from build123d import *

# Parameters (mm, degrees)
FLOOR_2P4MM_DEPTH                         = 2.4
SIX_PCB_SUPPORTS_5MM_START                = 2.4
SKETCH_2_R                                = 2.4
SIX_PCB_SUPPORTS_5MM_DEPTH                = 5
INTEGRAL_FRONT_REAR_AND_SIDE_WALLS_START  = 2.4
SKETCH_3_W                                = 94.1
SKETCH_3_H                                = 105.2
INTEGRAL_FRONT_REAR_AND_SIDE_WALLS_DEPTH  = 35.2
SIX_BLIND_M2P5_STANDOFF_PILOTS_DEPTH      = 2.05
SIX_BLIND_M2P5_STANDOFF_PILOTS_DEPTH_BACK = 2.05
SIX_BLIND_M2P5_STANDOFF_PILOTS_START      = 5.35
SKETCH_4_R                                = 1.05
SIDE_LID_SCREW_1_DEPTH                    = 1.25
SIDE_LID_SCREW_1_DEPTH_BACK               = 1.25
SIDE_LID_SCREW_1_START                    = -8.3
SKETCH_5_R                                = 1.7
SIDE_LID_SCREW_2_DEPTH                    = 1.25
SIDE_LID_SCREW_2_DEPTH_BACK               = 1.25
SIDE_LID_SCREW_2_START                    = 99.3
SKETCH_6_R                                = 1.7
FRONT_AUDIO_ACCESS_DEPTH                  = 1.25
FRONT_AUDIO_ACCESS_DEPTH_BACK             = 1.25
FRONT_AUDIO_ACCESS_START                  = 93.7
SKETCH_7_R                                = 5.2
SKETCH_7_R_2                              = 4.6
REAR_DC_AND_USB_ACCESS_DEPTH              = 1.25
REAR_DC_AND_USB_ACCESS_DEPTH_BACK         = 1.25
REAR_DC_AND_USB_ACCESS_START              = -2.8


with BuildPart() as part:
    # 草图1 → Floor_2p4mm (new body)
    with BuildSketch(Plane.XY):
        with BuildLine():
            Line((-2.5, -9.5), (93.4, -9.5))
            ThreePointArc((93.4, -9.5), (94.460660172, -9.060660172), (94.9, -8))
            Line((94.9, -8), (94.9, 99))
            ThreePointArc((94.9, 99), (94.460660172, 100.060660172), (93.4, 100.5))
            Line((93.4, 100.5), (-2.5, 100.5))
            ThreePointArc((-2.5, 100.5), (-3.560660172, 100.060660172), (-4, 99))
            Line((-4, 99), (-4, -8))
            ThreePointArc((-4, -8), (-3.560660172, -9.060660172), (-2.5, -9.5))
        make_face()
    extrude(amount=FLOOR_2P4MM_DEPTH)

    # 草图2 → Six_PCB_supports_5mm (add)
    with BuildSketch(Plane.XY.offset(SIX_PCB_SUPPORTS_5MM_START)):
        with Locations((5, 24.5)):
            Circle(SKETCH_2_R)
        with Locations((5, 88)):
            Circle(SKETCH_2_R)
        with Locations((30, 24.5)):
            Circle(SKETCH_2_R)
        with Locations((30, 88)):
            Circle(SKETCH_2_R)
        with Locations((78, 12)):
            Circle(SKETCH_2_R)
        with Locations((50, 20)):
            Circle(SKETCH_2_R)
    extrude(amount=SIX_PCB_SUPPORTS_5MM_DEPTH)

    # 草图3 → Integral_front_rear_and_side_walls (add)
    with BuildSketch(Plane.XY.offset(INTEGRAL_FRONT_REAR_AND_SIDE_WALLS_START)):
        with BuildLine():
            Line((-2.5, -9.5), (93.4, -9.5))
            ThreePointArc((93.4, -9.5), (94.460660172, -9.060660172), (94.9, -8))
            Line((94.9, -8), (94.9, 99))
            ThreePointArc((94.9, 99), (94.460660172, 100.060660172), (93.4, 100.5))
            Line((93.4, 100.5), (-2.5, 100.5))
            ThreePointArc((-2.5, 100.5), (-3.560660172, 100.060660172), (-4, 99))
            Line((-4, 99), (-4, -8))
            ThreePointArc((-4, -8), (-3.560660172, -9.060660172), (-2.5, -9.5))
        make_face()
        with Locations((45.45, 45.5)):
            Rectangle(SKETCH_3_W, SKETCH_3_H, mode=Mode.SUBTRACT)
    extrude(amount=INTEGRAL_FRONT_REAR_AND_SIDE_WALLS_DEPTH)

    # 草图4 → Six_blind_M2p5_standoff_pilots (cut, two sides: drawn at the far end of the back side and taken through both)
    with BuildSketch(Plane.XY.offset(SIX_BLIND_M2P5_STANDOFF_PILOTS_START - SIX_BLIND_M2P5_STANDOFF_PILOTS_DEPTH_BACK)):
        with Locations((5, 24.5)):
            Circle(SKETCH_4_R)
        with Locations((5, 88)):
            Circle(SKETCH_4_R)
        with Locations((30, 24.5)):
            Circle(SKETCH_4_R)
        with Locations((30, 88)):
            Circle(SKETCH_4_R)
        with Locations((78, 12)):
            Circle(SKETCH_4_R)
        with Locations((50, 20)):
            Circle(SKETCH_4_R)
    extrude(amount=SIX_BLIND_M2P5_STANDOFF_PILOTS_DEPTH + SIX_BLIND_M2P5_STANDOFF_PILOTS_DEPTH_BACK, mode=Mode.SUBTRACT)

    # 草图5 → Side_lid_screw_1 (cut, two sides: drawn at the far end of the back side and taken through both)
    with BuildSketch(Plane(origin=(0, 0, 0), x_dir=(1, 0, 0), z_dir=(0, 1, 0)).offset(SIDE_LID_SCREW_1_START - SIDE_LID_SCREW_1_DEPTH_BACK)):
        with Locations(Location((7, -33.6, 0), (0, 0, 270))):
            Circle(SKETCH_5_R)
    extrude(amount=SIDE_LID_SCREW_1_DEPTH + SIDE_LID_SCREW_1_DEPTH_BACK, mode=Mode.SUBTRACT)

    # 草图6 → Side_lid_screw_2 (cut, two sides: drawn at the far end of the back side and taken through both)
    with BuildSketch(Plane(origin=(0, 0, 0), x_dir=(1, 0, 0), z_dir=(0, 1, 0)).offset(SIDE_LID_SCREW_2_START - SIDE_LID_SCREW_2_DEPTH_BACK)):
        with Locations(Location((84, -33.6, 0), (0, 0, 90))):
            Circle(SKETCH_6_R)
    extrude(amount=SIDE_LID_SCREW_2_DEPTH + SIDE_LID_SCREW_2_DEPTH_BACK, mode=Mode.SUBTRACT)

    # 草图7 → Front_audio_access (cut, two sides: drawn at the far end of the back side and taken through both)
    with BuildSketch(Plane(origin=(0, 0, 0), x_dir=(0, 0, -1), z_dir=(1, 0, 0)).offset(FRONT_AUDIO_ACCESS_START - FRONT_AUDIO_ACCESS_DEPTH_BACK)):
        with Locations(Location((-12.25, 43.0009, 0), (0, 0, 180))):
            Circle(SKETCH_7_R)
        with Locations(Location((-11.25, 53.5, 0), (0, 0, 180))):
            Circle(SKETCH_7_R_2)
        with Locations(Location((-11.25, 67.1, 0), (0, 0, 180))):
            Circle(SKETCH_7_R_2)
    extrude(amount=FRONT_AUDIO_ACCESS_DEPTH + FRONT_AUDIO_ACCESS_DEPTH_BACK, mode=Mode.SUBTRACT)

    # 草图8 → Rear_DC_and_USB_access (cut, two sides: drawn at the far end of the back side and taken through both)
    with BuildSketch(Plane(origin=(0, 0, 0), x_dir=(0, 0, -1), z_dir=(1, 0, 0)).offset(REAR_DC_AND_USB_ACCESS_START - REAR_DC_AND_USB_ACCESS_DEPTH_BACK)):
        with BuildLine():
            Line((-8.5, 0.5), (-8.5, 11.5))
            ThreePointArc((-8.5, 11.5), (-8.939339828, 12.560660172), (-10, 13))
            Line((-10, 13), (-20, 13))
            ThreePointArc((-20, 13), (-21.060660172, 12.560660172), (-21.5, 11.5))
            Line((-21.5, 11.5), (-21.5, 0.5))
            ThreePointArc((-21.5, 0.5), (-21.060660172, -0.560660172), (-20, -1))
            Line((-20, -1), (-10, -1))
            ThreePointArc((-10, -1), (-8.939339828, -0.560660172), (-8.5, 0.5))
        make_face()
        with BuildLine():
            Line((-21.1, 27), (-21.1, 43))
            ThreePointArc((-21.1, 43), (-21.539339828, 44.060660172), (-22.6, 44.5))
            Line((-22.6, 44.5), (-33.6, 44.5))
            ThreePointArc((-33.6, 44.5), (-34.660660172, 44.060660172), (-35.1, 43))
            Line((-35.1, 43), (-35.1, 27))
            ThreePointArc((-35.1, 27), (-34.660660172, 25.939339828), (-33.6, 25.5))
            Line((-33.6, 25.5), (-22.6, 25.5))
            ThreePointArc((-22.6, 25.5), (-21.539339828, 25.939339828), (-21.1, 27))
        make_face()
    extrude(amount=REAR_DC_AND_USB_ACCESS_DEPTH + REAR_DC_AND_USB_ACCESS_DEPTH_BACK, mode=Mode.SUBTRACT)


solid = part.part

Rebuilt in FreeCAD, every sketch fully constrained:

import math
import FreeCAD as App
import Part
import Sketcher
Q = App.Units.Quantity


def add_polygon(sketch, points):
    """Adds a closed chain of lines whose ends are joined by coincident constraints."""
    first, n = sketch.GeometryCount, len(points)
    for a, b in zip(points, points[1:] + points[:1]):
        sketch.addGeometry(Part.LineSegment(App.Vector(*a, 0), App.Vector(*b, 0)), False)
    for i in range(n):
        sketch.addConstraint(Sketcher.Constraint("Coincident", first + i, 2, first + (i + 1) % n, 1))

doc = App.newDocument("Part")
body = doc.addObject("PartDesign::Body", "Body")

# Sketch on XY plane
sketch1 = doc.addObject("Sketcher::SketchObject", "Sketch")
body.addObject(sketch1)
sketch1.AttachmentSupport = (doc.XY_Plane, [""])
sketch1.MapMode = "FlatFace"
sketch1.addGeometry([
    Part.LineSegment(App.Vector(-2.5, -9.5, 0), App.Vector(93.4, -9.5, 0)),  # 0
    Part.ArcOfCircle(Part.Circle(App.Vector(93.4, -8, 0), App.Vector(0, 0, 1), 1.5), math.radians(-90), math.radians(0)),  # 1
    Part.LineSegment(App.Vector(94.9, -8, 0), App.Vector(94.9, 99, 0)),  # 2
    Part.ArcOfCircle(Part.Circle(App.Vector(93.4, 99, 0), App.Vector(0, 0, 1), 1.5), math.radians(0), math.radians(90)),  # 3
    Part.LineSegment(App.Vector(93.4, 100.5, 0), App.Vector(-2.5, 100.5, 0)),  # 4
    Part.ArcOfCircle(Part.Circle(App.Vector(-2.5, 99, 0), App.Vector(0, 0, 1), 1.5), math.radians(90), math.radians(180)),  # 5
    Part.LineSegment(App.Vector(-4, 99, 0), App.Vector(-4, -8, 0)),  # 6
    Part.ArcOfCircle(Part.Circle(App.Vector(-2.5, -8, 0), App.Vector(0, 0, 1), 1.5), math.radians(180), math.radians(270)),  # 7
], False)
sketch1.addConstraint([
    Sketcher.Constraint("Tangent", 0, 2, 1, 1),
    Sketcher.Constraint("Tangent", 1, 2, 2, 1),
    Sketcher.Constraint("Tangent", 2, 2, 3, 1),
    Sketcher.Constraint("Tangent", 3, 2, 4, 1),
    Sketcher.Constraint("Tangent", 4, 2, 5, 1),
    Sketcher.Constraint("Tangent", 5, 2, 6, 1),
    Sketcher.Constraint("Tangent", 6, 2, 7, 1),
    Sketcher.Constraint("Tangent", 7, 2, 0, 1),
    Sketcher.Constraint("Horizontal", 0),
    Sketcher.Constraint("Vertical", 2),
    Sketcher.Constraint("Horizontal", 4),
    Sketcher.Constraint("Vertical", 6),
    Sketcher.Constraint("Equal", 1, 3),
    Sketcher.Constraint("Equal", 3, 5),
    Sketcher.Constraint("Equal", 5, 7),
    Sketcher.Constraint("Radius", 1, Q("1.5 mm")),
    Sketcher.Constraint("DistanceY", 2, 1, 2, 2, Q("107 mm")),
    Sketcher.Constraint("DistanceX", 0, 1, 0, 2, Q("95.9 mm")),
    Sketcher.Constraint("DistanceY", 1, 3, -1, 1, Q("8 mm")),
    Sketcher.Constraint("DistanceX", 5, 2, -1, 1, Q("4 mm")),
])
pad1 = doc.addObject("PartDesign::Pad", "Pad")
body.addObject(pad1)
pad1.Profile = sketch1
pad1.Length = 2.4

# Sketch on XY plane
sketch2 = doc.addObject("Sketcher::SketchObject", "Sketch001")
body.addObject(sketch2)
sketch2.AttachmentSupport = (doc.XY_Plane, [""])
sketch2.MapMode = "FlatFace"
sketch2.AttachmentOffset = App.Placement(App.Vector(0, 0, 2.4), App.Rotation())
sketch2.addGeometry([
    Part.Circle(App.Vector(5, 24.5, 0), App.Vector(0, 0, 1), 2.4),  # 0
    Part.Circle(App.Vector(5, 88, 0), App.Vector(0, 0, 1), 2.4),  # 1
    Part.Circle(App.Vector(30, 24.5, 0), App.Vector(0, 0, 1), 2.4),  # 2
    Part.Circle(App.Vector(30, 88, 0), App.Vector(0, 0, 1), 2.4),  # 3
    Part.Circle(App.Vector(78, 12, 0), App.Vector(0, 0, 1), 2.4),  # 4
    Part.Circle(App.Vector(50, 20, 0), App.Vector(0, 0, 1), 2.4),  # 5
], False)
sketch2.addConstraint([
    Sketcher.Constraint("Equal", 0, 1),
    Sketcher.Constraint("Equal", 1, 2),
    Sketcher.Constraint("Equal", 2, 3),
    Sketcher.Constraint("Equal", 3, 4),
    Sketcher.Constraint("Equal", 4, 5),
    Sketcher.Constraint("Horizontal", 0, 3, 2, 3),
    Sketcher.Constraint("Horizontal", 1, 3, 3, 3),
    Sketcher.Constraint("Vertical", 0, 3, 1, 3),
    Sketcher.Constraint("Vertical", 2, 3, 3, 3),
    Sketcher.Constraint("Diameter", 0, Q("4.8 mm")),
    Sketcher.Constraint("DistanceX", -1, 1, 0, 3, Q("5 mm")),
    Sketcher.Constraint("DistanceY", -1, 1, 1, 3, Q("88 mm")),
    Sketcher.Constraint("DistanceX", -1, 1, 2, 3, Q("30 mm")),
    Sketcher.Constraint("DistanceX", -1, 1, 4, 3, Q("78 mm")),
    Sketcher.Constraint("DistanceY", -1, 1, 4, 3, Q("12 mm")),
    Sketcher.Constraint("DistanceX", -1, 1, 5, 3, Q("50 mm")),
    Sketcher.Constraint("DistanceY", -1, 1, 5, 3, Q("20 mm")),
    Sketcher.Constraint("DistanceY", -1, 1, 0, 3, Q("24.5 mm")),
])
pad2 = doc.addObject("PartDesign::Pad", "Pad001")
body.addObject(pad2)
pad2.Profile = sketch2
pad2.Length = 5

# Sketch on XY plane
sketch3 = doc.addObject("Sketcher::SketchObject", "Sketch002")
body.addObject(sketch3)
sketch3.AttachmentSupport = (doc.XY_Plane, [""])
sketch3.MapMode = "FlatFace"
sketch3.AttachmentOffset = App.Placement(App.Vector(0, 0, 2.4), App.Rotation())
sketch3.addGeometry(Part.LineSegment(App.Vector(-2.5, -9.5, 0), App.Vector(93.4, -9.5, 0)), False)  # 0
sketch3.addGeometry(Part.ArcOfCircle(Part.Circle(App.Vector(93.4, -8, 0), App.Vector(0, 0, 1), 1.5), math.radians(-90), math.radians(0)), False)  # 1
sketch3.addGeometry(Part.LineSegment(App.Vector(94.9, -8, 0), App.Vector(94.9, 99, 0)), False)  # 2
sketch3.addGeometry(Part.ArcOfCircle(Part.Circle(App.Vector(93.4, 99, 0), App.Vector(0, 0, 1), 1.5), math.radians(0), math.radians(90)), False)  # 3
sketch3.addGeometry(Part.LineSegment(App.Vector(93.4, 100.5, 0), App.Vector(-2.5, 100.5, 0)), False)  # 4
sketch3.addGeometry(Part.ArcOfCircle(Part.Circle(App.Vector(-2.5, 99, 0), App.Vector(0, 0, 1), 1.5), math.radians(90), math.radians(180)), False)  # 5
sketch3.addGeometry(Part.LineSegment(App.Vector(-4, 99, 0), App.Vector(-4, -8, 0)), False)  # 6
sketch3.addGeometry(Part.ArcOfCircle(Part.Circle(App.Vector(-2.5, -8, 0), App.Vector(0, 0, 1), 1.5), math.radians(180), math.radians(270)), False)  # 7
add_polygon(sketch3, [(92.5, -7.1), (-1.6, -7.1), (-1.6, 98.1), (92.5, 98.1)])  # lines 8-11
sketch3.addConstraint([
    Sketcher.Constraint("Tangent", 0, 2, 1, 1),
    Sketcher.Constraint("Tangent", 1, 2, 2, 1),
    Sketcher.Constraint("Tangent", 2, 2, 3, 1),
    Sketcher.Constraint("Tangent", 3, 2, 4, 1),
    Sketcher.Constraint("Tangent", 4, 2, 5, 1),
    Sketcher.Constraint("Tangent", 5, 2, 6, 1),
    Sketcher.Constraint("Tangent", 6, 2, 7, 1),
    Sketcher.Constraint("Tangent", 7, 2, 0, 1),
    Sketcher.Constraint("Horizontal", 0),
    Sketcher.Constraint("Vertical", 2),
    Sketcher.Constraint("Horizontal", 4),
    Sketcher.Constraint("Vertical", 6),
    Sketcher.Constraint("Horizontal", 8),
    Sketcher.Constraint("Vertical", 9),
    Sketcher.Constraint("Horizontal", 10),
    Sketcher.Constraint("Vertical", 11),
    Sketcher.Constraint("Equal", 1, 3),
    Sketcher.Constraint("Equal", 3, 5),
    Sketcher.Constraint("Equal", 5, 7),
    Sketcher.Constraint("Radius", 1, Q("1.5 mm")),
    Sketcher.Constraint("DistanceY", 2, 1, 2, 2, Q("107 mm")),
    Sketcher.Constraint("DistanceX", 0, 1, 0, 2, Q("95.9 mm")),
    Sketcher.Constraint("DistanceX", 8, 2, 8, 1, Q("94.1 mm")),
    Sketcher.Constraint("DistanceY", 9, 1, 9, 2, Q("105.2 mm")),
    Sketcher.Constraint("DistanceY", 1, 3, -1, 1, Q("8 mm")),
    Sketcher.Constraint("DistanceX", 5, 2, -1, 1, Q("4 mm")),
    Sketcher.Constraint("DistanceX", 8, 2, 1, 3, Q("95 mm")),
    Sketcher.Constraint("DistanceY", 8, 2, -1, 1, Q("7.1 mm")),
])
pad3 = doc.addObject("PartDesign::Pad", "Pad002")
body.addObject(pad3)
pad3.Profile = sketch3
pad3.Length = 35.2

# Sketch on XY plane
sketch4 = doc.addObject("Sketcher::SketchObject", "Sketch003")
body.addObject(sketch4)
sketch4.AttachmentSupport = (doc.XY_Plane, [""])
sketch4.MapMode = "FlatFace"
sketch4.AttachmentOffset = App.Placement(App.Vector(0, 0, 5.35), App.Rotation())
sketch4.addGeometry([
    Part.Circle(App.Vector(5, 24.5, 0), App.Vector(0, 0, 1), 1.1),  # 0
    Part.Circle(App.Vector(5, 88, 0), App.Vector(0, 0, 1), 1.1),  # 1
    Part.Circle(App.Vector(30, 24.5, 0), App.Vector(0, 0, 1), 1.1),  # 2
    Part.Circle(App.Vector(30, 88, 0), App.Vector(0, 0, 1), 1.1),  # 3
    Part.Circle(App.Vector(78, 12, 0), App.Vector(0, 0, 1), 1.1),  # 4
    Part.Circle(App.Vector(50, 20, 0), App.Vector(0, 0, 1), 1.1),  # 5
], False)
sketch4.addConstraint([
    Sketcher.Constraint("Equal", 0, 1),
    Sketcher.Constraint("Equal", 1, 2),
    Sketcher.Constraint("Equal", 2, 3),
    Sketcher.Constraint("Equal", 3, 4),
    Sketcher.Constraint("Equal", 4, 5),
    Sketcher.Constraint("Horizontal", 0, 3, 2, 3),
    Sketcher.Constraint("Horizontal", 1, 3, 3, 3),
    Sketcher.Constraint("Vertical", 0, 3, 1, 3),
    Sketcher.Constraint("Vertical", 2, 3, 3, 3),
    Sketcher.Constraint("Diameter", 0, Q("2.1 mm")),
    Sketcher.Constraint("DistanceX", -1, 1, 0, 3, Q("5 mm")),
    Sketcher.Constraint("DistanceY", -1, 1, 1, 3, Q("88 mm")),
    Sketcher.Constraint("DistanceX", -1, 1, 2, 3, Q("30 mm")),
    Sketcher.Constraint("DistanceX", -1, 1, 4, 3, Q("78 mm")),
    Sketcher.Constraint("DistanceY", -1, 1, 4, 3, Q("12 mm")),
    Sketcher.Constraint("DistanceX", -1, 1, 5, 3, Q("50 mm")),
    Sketcher.Constraint("DistanceY", -1, 1, 5, 3, Q("20 mm")),
    Sketcher.Constraint("DistanceY", -1, 1, 0, 3, Q("24.5 mm")),
])
pocket1 = doc.addObject("PartDesign::Pocket", "Pocket")
body.addObject(pocket1)
pocket1.Profile = sketch4
pocket1.Type = "TwoLengths"
pocket1.Length = 2.05
pocket1.Length2 = 2.05
pocket1.Reversed = True

# Sketch on XZ plane
sketch5 = doc.addObject("Sketcher::SketchObject", "Sketch004")
body.addObject(sketch5)
sketch5.AttachmentSupport = (doc.XZ_Plane, [""])
sketch5.MapMode = "FlatFace"
sketch5.AttachmentOffset = App.Placement(App.Vector(0, 0, 8.3), App.Rotation())
sketch5.addGeometry(Part.Circle(App.Vector(7, 33.6, 0), App.Vector(0, 0, 1), 1.7), False)
sketch5.addConstraint([
    Sketcher.Constraint("Diameter", 0, Q("3.4 mm")),
    Sketcher.Constraint("DistanceX", -1, 1, 0, 3, Q("7 mm")),
    Sketcher.Constraint("DistanceY", -1, 1, 0, 3, Q("33.6 mm")),
])
pocket2 = doc.addObject("PartDesign::Pocket", "Pocket001")
body.addObject(pocket2)
pocket2.Profile = sketch5
pocket2.Type = "TwoLengths"
pocket2.Length = 1.25
pocket2.Length2 = 1.25

# Sketch on XZ plane
sketch6 = doc.addObject("Sketcher::SketchObject", "Sketch005")
body.addObject(sketch6)
sketch6.AttachmentSupport = (doc.XZ_Plane, [""])
sketch6.MapMode = "FlatFace"
sketch6.AttachmentOffset = App.Placement(App.Vector(0, 0, -99.3), App.Rotation())
sketch6.addGeometry(Part.Circle(App.Vector(84, 33.6, 0), App.Vector(0, 0, 1), 1.7), False)
sketch6.addConstraint([
    Sketcher.Constraint("Diameter", 0, Q("3.4 mm")),
    Sketcher.Constraint("DistanceX", -1, 1, 0, 3, Q("84 mm")),
    Sketcher.Constraint("DistanceY", -1, 1, 0, 3, Q("33.6 mm")),
])
pocket3 = doc.addObject("PartDesign::Pocket", "Pocket002")
body.addObject(pocket3)
pocket3.Profile = sketch6
pocket3.Type = "TwoLengths"
pocket3.Length = 1.25
pocket3.Length2 = 1.25

# Sketch on YZ plane
sketch7 = doc.addObject("Sketcher::SketchObject", "Sketch006")
body.addObject(sketch7)
sketch7.AttachmentSupport = (doc.YZ_Plane, [""])
sketch7.MapMode = "FlatFace"
sketch7.AttachmentOffset = App.Placement(App.Vector(0, 0, 93.7), App.Rotation())
sketch7.addGeometry([
    Part.Circle(App.Vector(43, 12.2, 0), App.Vector(0, 0, 1), 5.2),
    Part.Circle(App.Vector(53.5, 11.2, 0), App.Vector(0, 0, 1), 4.6),
    Part.Circle(App.Vector(67.1, 11.2, 0), App.Vector(0, 0, 1), 4.6),
], False)
sketch7.addConstraint([
    Sketcher.Constraint("Equal", 1, 2),
    Sketcher.Constraint("Horizontal", 1, 3, 2, 3),
    Sketcher.Constraint("Diameter", 0, Q("10.4 mm")),
    Sketcher.Constraint("Diameter", 1, Q("9.2 mm")),
    Sketcher.Constraint("DistanceY", 1, 3, 0, 3, Q("1 mm")),
    Sketcher.Constraint("DistanceX", -1, 1, 1, 3, Q("53.5 mm")),
    Sketcher.Constraint("DistanceX", -1, 1, 2, 3, Q("67.1 mm")),
    Sketcher.Constraint("DistanceY", -1, 1, 0, 3, Q("12.25 mm")),
    Sketcher.Constraint("DistanceX", -1, 1, 0, 3, Q("43.0009 mm")),
])
pocket4 = doc.addObject("PartDesign::Pocket", "Pocket003")
body.addObject(pocket4)
pocket4.Profile = sketch7
pocket4.Type = "TwoLengths"
pocket4.Length = 1.25
pocket4.Length2 = 1.25
pocket4.Reversed = True

# Sketch on YZ plane
sketch8 = doc.addObject("Sketcher::SketchObject", "Sketch007")
body.addObject(sketch8)
sketch8.AttachmentSupport = (doc.YZ_Plane, [""])
sketch8.MapMode = "FlatFace"
sketch8.AttachmentOffset = App.Placement(App.Vector(0, 0, -2.8), App.Rotation())
sketch8.addGeometry([
    Part.LineSegment(App.Vector(0.5, 8.5, 0), App.Vector(11.5, 8.5, 0)),  # 0
    Part.ArcOfCircle(Part.Circle(App.Vector(11.5, 10, 0), App.Vector(0, 0, 1), 1.5), math.radians(-90), math.radians(0)),  # 1
    Part.LineSegment(App.Vector(13, 10, 0), App.Vector(13, 20, 0)),  # 2
    Part.ArcOfCircle(Part.Circle(App.Vector(11.5, 20, 0), App.Vector(0, 0, 1), 1.5), math.radians(0), math.radians(90)),  # 3
    Part.LineSegment(App.Vector(11.5, 21.5, 0), App.Vector(0.5, 21.5, 0)),  # 4
    Part.ArcOfCircle(Part.Circle(App.Vector(0.5, 20, 0), App.Vector(0, 0, 1), 1.5), math.radians(90), math.radians(180)),  # 5
    Part.LineSegment(App.Vector(-1, 20, 0), App.Vector(-1, 10, 0)),  # 6
    Part.ArcOfCircle(Part.Circle(App.Vector(0.5, 10, 0), App.Vector(0, 0, 1), 1.5), math.radians(180), math.radians(270)),  # 7
    Part.LineSegment(App.Vector(27, 21.1, 0), App.Vector(43, 21.1, 0)),  # 8
    Part.ArcOfCircle(Part.Circle(App.Vector(43, 22.6, 0), App.Vector(0, 0, 1), 1.5), math.radians(-90), math.radians(0)),  # 9
    Part.LineSegment(App.Vector(44.5, 22.6, 0), App.Vector(44.5, 33.6, 0)),  # 10
    Part.ArcOfCircle(Part.Circle(App.Vector(43, 33.6, 0), App.Vector(0, 0, 1), 1.5), math.radians(0), math.radians(90)),  # 11
    Part.LineSegment(App.Vector(43, 35.1, 0), App.Vector(27, 35.1, 0)),  # 12
    Part.ArcOfCircle(Part.Circle(App.Vector(27, 33.6, 0), App.Vector(0, 0, 1), 1.5), math.radians(90), math.radians(180)),  # 13
    Part.LineSegment(App.Vector(25.5, 33.6, 0), App.Vector(25.5, 22.6, 0)),  # 14
    Part.ArcOfCircle(Part.Circle(App.Vector(27, 22.6, 0), App.Vector(0, 0, 1), 1.5), math.radians(180), math.radians(270)),  # 15
], False)
sketch8.addConstraint([
    Sketcher.Constraint("Tangent", 0, 2, 1, 1),
    Sketcher.Constraint("Tangent", 1, 2, 2, 1),
    Sketcher.Constraint("Tangent", 2, 2, 3, 1),
    Sketcher.Constraint("Tangent", 3, 2, 4, 1),
    Sketcher.Constraint("Tangent", 4, 2, 5, 1),
    Sketcher.Constraint("Tangent", 5, 2, 6, 1),
    Sketcher.Constraint("Tangent", 6, 2, 7, 1),
    Sketcher.Constraint("Tangent", 7, 2, 0, 1),
    Sketcher.Constraint("Tangent", 8, 2, 9, 1),
    Sketcher.Constraint("Tangent", 9, 2, 10, 1),
    Sketcher.Constraint("Tangent", 10, 2, 11, 1),
    Sketcher.Constraint("Tangent", 11, 2, 12, 1),
    Sketcher.Constraint("Tangent", 12, 2, 13, 1),
    Sketcher.Constraint("Tangent", 13, 2, 14, 1),
    Sketcher.Constraint("Tangent", 14, 2, 15, 1),
    Sketcher.Constraint("Tangent", 15, 2, 8, 1),
    Sketcher.Constraint("Horizontal", 0),
    Sketcher.Constraint("Vertical", 2),
    Sketcher.Constraint("Horizontal", 4),
    Sketcher.Constraint("Vertical", 6),
    Sketcher.Constraint("Horizontal", 8),
    Sketcher.Constraint("Vertical", 10),
    Sketcher.Constraint("Horizontal", 12),
    Sketcher.Constraint("Vertical", 14),
    Sketcher.Constraint("Equal", 1, 3),
    Sketcher.Constraint("Equal", 3, 5),
    Sketcher.Constraint("Equal", 5, 7),
    Sketcher.Constraint("Equal", 7, 9),
    Sketcher.Constraint("Equal", 9, 11),
    Sketcher.Constraint("Equal", 11, 13),
    Sketcher.Constraint("Equal", 13, 15),
    Sketcher.Constraint("Equal", 4, 10),
    Sketcher.Constraint("Radius", 1, Q("1.5 mm")),
    Sketcher.Constraint("DistanceX", 0, 1, 0, 2, Q("11 mm")),
    Sketcher.Constraint("DistanceX", 8, 1, 8, 2, Q("16 mm")),
    Sketcher.Constraint("DistanceY", 2, 1, 2, 2, Q("10 mm")),
    Sketcher.Constraint("DistanceY", -1, 1, 1, 3, Q("10 mm")),
    Sketcher.Constraint("DistanceX", -1, 1, 9, 3, Q("43 mm")),
    Sketcher.Constraint("DistanceX", -1, 1, 1, 2, Q("13 mm")),
    Sketcher.Constraint("DistanceY", -1, 1, 9, 3, Q("22.6 mm")),
])
pocket5 = doc.addObject("PartDesign::Pocket", "Pocket004")
body.addObject(pocket5)
pocket5.Profile = sketch8
pocket5.Type = "TwoLengths"
pocket5.Length = 1.25
pocket5.Length2 = 1.25
pocket5.Reversed = True

doc.recompute()
